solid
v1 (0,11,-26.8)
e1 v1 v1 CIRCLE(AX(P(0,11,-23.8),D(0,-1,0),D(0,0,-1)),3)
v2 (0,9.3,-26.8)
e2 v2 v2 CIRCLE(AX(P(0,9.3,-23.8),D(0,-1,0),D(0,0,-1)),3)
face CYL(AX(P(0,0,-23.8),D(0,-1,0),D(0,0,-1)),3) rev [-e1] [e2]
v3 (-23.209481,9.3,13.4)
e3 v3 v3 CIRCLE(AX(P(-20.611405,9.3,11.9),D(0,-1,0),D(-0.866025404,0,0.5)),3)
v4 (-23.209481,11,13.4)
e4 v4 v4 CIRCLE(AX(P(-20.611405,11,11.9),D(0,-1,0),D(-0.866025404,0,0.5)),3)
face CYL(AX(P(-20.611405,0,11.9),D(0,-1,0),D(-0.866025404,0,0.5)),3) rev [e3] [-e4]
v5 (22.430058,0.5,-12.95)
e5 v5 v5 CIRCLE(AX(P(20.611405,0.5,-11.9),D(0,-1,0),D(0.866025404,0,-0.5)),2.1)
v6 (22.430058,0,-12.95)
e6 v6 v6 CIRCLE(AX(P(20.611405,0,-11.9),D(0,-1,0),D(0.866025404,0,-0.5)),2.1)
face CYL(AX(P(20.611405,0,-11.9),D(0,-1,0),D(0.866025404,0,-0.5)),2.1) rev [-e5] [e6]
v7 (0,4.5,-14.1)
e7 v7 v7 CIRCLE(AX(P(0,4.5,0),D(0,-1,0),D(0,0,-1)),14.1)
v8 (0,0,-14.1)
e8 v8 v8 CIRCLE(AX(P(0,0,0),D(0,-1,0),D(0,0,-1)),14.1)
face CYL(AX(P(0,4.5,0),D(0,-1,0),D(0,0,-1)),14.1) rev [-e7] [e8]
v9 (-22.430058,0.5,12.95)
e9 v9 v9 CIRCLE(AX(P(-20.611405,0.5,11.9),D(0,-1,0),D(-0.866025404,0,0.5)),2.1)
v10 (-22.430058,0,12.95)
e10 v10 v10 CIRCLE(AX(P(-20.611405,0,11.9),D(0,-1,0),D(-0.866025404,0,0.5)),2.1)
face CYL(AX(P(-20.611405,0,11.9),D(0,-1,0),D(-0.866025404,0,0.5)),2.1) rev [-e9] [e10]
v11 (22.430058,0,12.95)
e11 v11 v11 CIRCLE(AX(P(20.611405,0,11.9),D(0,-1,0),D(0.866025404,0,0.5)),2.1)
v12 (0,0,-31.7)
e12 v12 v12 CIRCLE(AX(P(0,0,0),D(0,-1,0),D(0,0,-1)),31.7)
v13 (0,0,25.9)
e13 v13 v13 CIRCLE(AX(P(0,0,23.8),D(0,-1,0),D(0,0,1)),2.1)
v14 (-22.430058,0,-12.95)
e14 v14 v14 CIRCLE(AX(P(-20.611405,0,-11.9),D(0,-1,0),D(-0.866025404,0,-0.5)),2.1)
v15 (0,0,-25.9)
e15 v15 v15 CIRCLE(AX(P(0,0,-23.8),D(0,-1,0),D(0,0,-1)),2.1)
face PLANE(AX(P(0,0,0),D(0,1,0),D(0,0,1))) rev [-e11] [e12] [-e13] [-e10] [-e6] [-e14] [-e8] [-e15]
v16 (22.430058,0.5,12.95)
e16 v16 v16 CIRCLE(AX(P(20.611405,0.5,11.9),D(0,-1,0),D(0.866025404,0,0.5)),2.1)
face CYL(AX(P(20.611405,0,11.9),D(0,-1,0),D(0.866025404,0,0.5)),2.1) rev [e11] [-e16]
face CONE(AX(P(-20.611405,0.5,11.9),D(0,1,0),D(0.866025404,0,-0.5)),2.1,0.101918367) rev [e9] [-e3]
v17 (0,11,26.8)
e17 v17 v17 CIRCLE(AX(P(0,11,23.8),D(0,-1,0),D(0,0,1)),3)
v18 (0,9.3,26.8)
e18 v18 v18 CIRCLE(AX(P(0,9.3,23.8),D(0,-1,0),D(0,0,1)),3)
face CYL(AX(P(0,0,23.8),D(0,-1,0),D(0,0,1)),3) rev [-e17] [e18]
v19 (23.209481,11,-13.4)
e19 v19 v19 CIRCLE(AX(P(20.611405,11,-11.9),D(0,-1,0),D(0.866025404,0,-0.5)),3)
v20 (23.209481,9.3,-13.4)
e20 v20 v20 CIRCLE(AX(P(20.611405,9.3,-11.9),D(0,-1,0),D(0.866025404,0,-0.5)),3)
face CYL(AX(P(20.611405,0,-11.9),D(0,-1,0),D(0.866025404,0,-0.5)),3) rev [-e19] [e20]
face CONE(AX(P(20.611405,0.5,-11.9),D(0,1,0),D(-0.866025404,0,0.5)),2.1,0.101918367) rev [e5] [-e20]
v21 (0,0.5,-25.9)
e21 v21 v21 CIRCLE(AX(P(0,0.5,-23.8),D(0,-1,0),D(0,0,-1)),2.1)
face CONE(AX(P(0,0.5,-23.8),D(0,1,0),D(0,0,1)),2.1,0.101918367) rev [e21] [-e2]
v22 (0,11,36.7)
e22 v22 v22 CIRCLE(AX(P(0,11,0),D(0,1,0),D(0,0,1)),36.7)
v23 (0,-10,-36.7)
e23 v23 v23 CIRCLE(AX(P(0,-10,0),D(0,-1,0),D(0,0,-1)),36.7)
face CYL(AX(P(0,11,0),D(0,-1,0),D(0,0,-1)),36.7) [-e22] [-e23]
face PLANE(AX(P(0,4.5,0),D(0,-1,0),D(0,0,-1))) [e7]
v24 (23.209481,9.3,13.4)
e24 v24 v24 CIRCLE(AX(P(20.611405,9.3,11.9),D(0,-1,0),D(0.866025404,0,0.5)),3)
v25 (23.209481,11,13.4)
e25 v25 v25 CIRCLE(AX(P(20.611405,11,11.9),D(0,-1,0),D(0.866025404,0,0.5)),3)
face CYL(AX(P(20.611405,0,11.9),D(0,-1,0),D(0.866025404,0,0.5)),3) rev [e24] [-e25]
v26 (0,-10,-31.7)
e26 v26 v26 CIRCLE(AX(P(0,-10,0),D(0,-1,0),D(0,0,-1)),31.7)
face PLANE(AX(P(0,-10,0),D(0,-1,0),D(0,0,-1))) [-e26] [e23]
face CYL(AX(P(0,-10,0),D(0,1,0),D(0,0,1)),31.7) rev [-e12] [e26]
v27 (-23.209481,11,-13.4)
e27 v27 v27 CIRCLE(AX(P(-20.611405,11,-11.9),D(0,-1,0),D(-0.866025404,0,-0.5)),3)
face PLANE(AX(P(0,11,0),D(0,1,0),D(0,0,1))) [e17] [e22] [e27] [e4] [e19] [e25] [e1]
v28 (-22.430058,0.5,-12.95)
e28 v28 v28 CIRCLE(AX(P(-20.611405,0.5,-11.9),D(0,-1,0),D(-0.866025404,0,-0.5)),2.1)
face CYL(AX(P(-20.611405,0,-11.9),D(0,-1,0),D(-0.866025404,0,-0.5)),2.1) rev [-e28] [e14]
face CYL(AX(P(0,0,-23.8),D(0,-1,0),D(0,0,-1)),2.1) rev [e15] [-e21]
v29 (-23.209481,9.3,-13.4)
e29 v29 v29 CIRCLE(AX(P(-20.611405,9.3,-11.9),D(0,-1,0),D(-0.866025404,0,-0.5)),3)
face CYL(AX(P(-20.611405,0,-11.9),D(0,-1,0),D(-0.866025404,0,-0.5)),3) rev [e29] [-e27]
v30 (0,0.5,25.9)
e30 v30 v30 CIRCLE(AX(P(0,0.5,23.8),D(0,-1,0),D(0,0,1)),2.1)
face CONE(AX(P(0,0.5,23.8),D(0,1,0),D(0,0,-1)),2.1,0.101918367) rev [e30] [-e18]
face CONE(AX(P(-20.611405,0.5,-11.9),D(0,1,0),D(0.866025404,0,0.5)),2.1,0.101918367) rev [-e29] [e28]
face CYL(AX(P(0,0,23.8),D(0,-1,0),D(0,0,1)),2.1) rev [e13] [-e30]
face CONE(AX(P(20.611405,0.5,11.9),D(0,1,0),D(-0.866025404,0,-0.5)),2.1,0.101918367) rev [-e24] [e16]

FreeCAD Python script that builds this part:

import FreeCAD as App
import Part
import Sketcher

V = App.Vector


def add_polygon(sketch, points):
    """Adds a closed chain of lines whose ends are joined by coincident constraints."""
    first, n = sketch.GeometryCount, len(points)
    for a, b in zip(points, points[1:] + points[:1]):
        sketch.addGeometry(Part.LineSegment(App.Vector(*a, 0), App.Vector(*b, 0)), False)
    for i in range(n):
        sketch.addConstraint(Sketcher.Constraint("Coincident", first + i, 2, first + (i + 1) % n, 1))

doc = App.newDocument("Part")
body = doc.addObject("PartDesign::Body", "Body")

# Sketch on XZ plane
sketch1 = body.newObject("Sketcher::SketchObject", "Sketch")
sketch1.AttachmentSupport = (doc.getObject("XZ_Plane"), [""])
sketch1.MapMode = "FlatFace"
sketch1.addGeometry(Part.Circle(V(0, 0, 0), V(0, 0, 1), 36.7), False)
sketch1.addConstraint([
    Sketcher.Constraint("Coincident", 0, 3, -1, 1),
    Sketcher.Constraint("Diameter", 0, 73.4),
])
pad1 = body.newObject("PartDesign::Pad", "Pad")
pad1.Profile = sketch1
pad1.Length = 11
pad1.Reversed = True

# Sketch on YZ plane
sketch2 = body.newObject("Sketcher::SketchObject", "Sketch001")
sketch2.AttachmentSupport = (doc.getObject("YZ_Plane"), [""])
sketch2.MapMode = "FlatFace"
add_polygon(sketch2, [(9.3, -26.8), (11, -26.8), (11, -23.8), (0, -23.8), (0, -25.9), (0.5, -25.9)])  # lines 0-5
sketch2.addGeometry(Part.LineSegment(V(0, -23.8, 0), V(11, -23.8, 0)), True)  # axis
sketch2.addConstraint([
    Sketcher.Constraint("Horizontal", 0),
    Sketcher.Constraint("Vertical", 1),
    Sketcher.Constraint("Horizontal", 2),
    Sketcher.Constraint("Vertical", 3),
    Sketcher.Constraint("Horizontal", 4),
    Sketcher.Constraint("Horizontal", 6),
    Sketcher.Constraint("Coincident", 6, 1, 2, 2),
    Sketcher.Constraint("PointOnObject", 2, 2, -2),
    Sketcher.Constraint("Vertical", 0, 2, 6, 2),
    Sketcher.Constraint("DistanceX", 2, 2, 2, 1, 11.0),
    Sketcher.Constraint("DistanceY", 1, 1, 1, 2, 3.0),
    Sketcher.Constraint("DistanceX", 0, 1, 0, 2, 1.7),
    Sketcher.Constraint("DistanceX", 4, 1, 4, 2, 0.5),
    Sketcher.Constraint("DistanceY", 3, 2, 3, 1, 2.1),
    Sketcher.Constraint("DistanceY", 0, 2, -1, 1, 26.8),
])
groove = body.newObject("PartDesign::Groove", "Groove")
groove.Profile = sketch2
groove.ReferenceAxis = (sketch2, ["Axis0"])
groove.Angle = 360

# Sketch on XZ plane
sketch3 = body.newObject("Sketcher::SketchObject", "Sketch002")
sketch3.AttachmentSupport = (doc.getObject("XZ_Plane"), [""])
sketch3.MapMode = "FlatFace"
sketch3.addGeometry(Part.Circle(V(0, 0, 0), V(0, 0, 1), 14.1), False)
sketch3.addConstraint([
    Sketcher.Constraint("Coincident", 0, 3, -1, 1),
    Sketcher.Constraint("Diameter", 0, 28.2),
])
pocket1 = body.newObject("PartDesign::Pocket", "Pocket")
pocket1.Profile = sketch3
pocket1.Length = 4.5

# Sketch on XZ plane
sketch4 = body.newObject("Sketcher::SketchObject", "Sketch003")
sketch4.AttachmentSupport = (doc.getObject("XZ_Plane"), [""])
sketch4.MapMode = "FlatFace"
sketch4.AttachmentOffset = App.Placement(V(0, 0, 10), App.Rotation())
sketch4.addGeometry([
    Part.Circle(V(0, 0, 0), V(0, 0, 1), 36.7),
    Part.Circle(V(0, 0, 0), V(0, 0, 1), 31.7),
], False)
sketch4.addConstraint([
    Sketcher.Constraint("Coincident", 0, 3, -1, 1),
    Sketcher.Constraint("Coincident", 1, 3, -1, 1),
    Sketcher.Constraint("Diameter", 0, 73.4),
    Sketcher.Constraint("Diameter", 1, 63.4),
])
pad2 = body.newObject("PartDesign::Pad", "Pad001")
pad2.Profile = sketch4
pad2.Length = 10
pad2.Reversed = True
doc.recompute()

polarpattern = body.newObject("PartDesign::PolarPattern", "PolarPattern")
polarpattern.Originals = [groove]
polarpattern.Axis = (doc.getObject("Y_Axis"), [""])
polarpattern.Angle = 360
polarpattern.Occurrences = 6
body.Tip = polarpattern

doc.recompute()
